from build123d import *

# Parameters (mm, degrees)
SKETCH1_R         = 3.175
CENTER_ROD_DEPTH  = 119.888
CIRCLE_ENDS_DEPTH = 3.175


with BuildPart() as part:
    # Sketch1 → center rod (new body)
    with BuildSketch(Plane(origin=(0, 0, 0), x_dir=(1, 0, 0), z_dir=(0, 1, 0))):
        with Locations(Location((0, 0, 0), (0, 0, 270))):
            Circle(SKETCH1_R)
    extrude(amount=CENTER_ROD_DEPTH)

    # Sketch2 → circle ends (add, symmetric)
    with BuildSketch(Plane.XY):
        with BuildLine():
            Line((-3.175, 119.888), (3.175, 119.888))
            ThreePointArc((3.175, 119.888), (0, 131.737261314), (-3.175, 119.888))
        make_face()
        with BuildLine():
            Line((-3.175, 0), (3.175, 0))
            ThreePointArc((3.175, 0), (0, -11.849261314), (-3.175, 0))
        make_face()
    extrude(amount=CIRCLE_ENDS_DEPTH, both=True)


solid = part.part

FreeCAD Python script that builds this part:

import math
import FreeCAD as App
import Part
import Sketcher

V = App.Vector
Q = App.Units.Quantity

doc = App.newDocument("Part")
params = doc.addObject("Spreadsheet::Sheet", "Params")
for row, (alias, value) in enumerate([
    ("sketch1_diameter", "0.25 in"),
    ("pad1_length", "4.72 in"),
    ("sketch2_radius", "0.25 in"),
    ("sketch2_width", "0.25 in"),
    ("pad2_length", "0.25 in"),
], start=1):
    params.set(f"A{row}", alias)
    params.set(f"B{row}", "=" + value)
    params.setAlias(f"B{row}", alias)

body = doc.addObject("PartDesign::Body", "Body")

sketch1 = body.newObject("Sketcher::SketchObject", "Sketch")
sketch1.AttachmentSupport = (doc.getObject("XZ_Plane"), [""])
sketch1.MapMode = "FlatFace"
sketch1.addGeometry(Part.Circle(V(0, 0, 0), V(0, 0, 1), 3.2), False)
sketch1.addConstraint(Sketcher.Constraint("Coincident", 0, 3, -1, 1))
sketch1.addConstraint(Sketcher.Constraint("Diameter", 0, Q("0.25 in")))
sketch1.setExpression("Constraints[1]", "Params.sketch1_diameter")
pad1 = body.newObject("PartDesign::Pad", "Pad")
pad1.Profile = sketch1
pad1.setExpression("Length", "Params.pad1_length")
pad1.Reversed = True

sketch2 = body.newObject("Sketcher::SketchObject", "Sketch001")
sketch2.AttachmentSupport = (doc.getObject("XY_Plane"), [""])
sketch2.MapMode = "FlatFace"
sketch2.addGeometry(Part.LineSegment(V(-3, 120, 0), V(3, 120, 0)), False)
sketch2.addGeometry(Part.ArcOfCircle(Part.Circle(V(0, 125, 0), V(0, 0, 1), 6), math.radians(-60), math.radians(240)), False)
sketch2.addGeometry(Part.LineSegment(V(3, 0, 0), V(-3, 0, 0)), False)
sketch2.addGeometry(Part.ArcOfCircle(Part.Circle(V(0, -5, 0), V(0, 0, 1), 6), math.radians(120), math.radians(420)), False)
sketch2.addConstraint(Sketcher.Constraint("Coincident", 0, 1, 1, 2))
sketch2.addConstraint(Sketcher.Constraint("Coincident", 1, 1, 0, 2))
sketch2.addConstraint(Sketcher.Constraint("Coincident", 2, 1, 3, 2))
sketch2.addConstraint(Sketcher.Constraint("Coincident", 3, 1, 2, 2))
sketch2.addConstraint(Sketcher.Constraint("Horizontal", 0))
sketch2.addConstraint(Sketcher.Constraint("Horizontal", 2))
sketch2.addConstraint(Sketcher.Constraint("Equal", 1, 3))
sketch2.addConstraint(Sketcher.Constraint("Symmetric", 2, 1, 3, 1, -1, 1))
sketch2.addConstraint(Sketcher.Constraint("PointOnObject", 1, 3, -2))
sketch2.addConstraint(Sketcher.Constraint("Vertical", 1, 1, 2, 1))
sketch2.addConstraint(Sketcher.Constraint("Radius", 1, Q("0.25 in")))
sketch2.addConstraint(Sketcher.Constraint("DistanceX", 0, 1, 0, 2, Q("0.25 in")))
sketch2.addConstraint(Sketcher.Constraint("DistanceY", -1, 1, 0, 1, Q("4.72 in")))
sketch2.setExpression("Constraints[10]", "Params.sketch2_radius")
sketch2.setExpression("Constraints[11]", "Params.sketch2_width")
pad2 = body.newObject("PartDesign::Pad", "Pad001")
pad2.Profile = sketch2
pad2.setExpression("Length", "Params.pad2_length")
pad2.Midplane = True

doc.recompute()
